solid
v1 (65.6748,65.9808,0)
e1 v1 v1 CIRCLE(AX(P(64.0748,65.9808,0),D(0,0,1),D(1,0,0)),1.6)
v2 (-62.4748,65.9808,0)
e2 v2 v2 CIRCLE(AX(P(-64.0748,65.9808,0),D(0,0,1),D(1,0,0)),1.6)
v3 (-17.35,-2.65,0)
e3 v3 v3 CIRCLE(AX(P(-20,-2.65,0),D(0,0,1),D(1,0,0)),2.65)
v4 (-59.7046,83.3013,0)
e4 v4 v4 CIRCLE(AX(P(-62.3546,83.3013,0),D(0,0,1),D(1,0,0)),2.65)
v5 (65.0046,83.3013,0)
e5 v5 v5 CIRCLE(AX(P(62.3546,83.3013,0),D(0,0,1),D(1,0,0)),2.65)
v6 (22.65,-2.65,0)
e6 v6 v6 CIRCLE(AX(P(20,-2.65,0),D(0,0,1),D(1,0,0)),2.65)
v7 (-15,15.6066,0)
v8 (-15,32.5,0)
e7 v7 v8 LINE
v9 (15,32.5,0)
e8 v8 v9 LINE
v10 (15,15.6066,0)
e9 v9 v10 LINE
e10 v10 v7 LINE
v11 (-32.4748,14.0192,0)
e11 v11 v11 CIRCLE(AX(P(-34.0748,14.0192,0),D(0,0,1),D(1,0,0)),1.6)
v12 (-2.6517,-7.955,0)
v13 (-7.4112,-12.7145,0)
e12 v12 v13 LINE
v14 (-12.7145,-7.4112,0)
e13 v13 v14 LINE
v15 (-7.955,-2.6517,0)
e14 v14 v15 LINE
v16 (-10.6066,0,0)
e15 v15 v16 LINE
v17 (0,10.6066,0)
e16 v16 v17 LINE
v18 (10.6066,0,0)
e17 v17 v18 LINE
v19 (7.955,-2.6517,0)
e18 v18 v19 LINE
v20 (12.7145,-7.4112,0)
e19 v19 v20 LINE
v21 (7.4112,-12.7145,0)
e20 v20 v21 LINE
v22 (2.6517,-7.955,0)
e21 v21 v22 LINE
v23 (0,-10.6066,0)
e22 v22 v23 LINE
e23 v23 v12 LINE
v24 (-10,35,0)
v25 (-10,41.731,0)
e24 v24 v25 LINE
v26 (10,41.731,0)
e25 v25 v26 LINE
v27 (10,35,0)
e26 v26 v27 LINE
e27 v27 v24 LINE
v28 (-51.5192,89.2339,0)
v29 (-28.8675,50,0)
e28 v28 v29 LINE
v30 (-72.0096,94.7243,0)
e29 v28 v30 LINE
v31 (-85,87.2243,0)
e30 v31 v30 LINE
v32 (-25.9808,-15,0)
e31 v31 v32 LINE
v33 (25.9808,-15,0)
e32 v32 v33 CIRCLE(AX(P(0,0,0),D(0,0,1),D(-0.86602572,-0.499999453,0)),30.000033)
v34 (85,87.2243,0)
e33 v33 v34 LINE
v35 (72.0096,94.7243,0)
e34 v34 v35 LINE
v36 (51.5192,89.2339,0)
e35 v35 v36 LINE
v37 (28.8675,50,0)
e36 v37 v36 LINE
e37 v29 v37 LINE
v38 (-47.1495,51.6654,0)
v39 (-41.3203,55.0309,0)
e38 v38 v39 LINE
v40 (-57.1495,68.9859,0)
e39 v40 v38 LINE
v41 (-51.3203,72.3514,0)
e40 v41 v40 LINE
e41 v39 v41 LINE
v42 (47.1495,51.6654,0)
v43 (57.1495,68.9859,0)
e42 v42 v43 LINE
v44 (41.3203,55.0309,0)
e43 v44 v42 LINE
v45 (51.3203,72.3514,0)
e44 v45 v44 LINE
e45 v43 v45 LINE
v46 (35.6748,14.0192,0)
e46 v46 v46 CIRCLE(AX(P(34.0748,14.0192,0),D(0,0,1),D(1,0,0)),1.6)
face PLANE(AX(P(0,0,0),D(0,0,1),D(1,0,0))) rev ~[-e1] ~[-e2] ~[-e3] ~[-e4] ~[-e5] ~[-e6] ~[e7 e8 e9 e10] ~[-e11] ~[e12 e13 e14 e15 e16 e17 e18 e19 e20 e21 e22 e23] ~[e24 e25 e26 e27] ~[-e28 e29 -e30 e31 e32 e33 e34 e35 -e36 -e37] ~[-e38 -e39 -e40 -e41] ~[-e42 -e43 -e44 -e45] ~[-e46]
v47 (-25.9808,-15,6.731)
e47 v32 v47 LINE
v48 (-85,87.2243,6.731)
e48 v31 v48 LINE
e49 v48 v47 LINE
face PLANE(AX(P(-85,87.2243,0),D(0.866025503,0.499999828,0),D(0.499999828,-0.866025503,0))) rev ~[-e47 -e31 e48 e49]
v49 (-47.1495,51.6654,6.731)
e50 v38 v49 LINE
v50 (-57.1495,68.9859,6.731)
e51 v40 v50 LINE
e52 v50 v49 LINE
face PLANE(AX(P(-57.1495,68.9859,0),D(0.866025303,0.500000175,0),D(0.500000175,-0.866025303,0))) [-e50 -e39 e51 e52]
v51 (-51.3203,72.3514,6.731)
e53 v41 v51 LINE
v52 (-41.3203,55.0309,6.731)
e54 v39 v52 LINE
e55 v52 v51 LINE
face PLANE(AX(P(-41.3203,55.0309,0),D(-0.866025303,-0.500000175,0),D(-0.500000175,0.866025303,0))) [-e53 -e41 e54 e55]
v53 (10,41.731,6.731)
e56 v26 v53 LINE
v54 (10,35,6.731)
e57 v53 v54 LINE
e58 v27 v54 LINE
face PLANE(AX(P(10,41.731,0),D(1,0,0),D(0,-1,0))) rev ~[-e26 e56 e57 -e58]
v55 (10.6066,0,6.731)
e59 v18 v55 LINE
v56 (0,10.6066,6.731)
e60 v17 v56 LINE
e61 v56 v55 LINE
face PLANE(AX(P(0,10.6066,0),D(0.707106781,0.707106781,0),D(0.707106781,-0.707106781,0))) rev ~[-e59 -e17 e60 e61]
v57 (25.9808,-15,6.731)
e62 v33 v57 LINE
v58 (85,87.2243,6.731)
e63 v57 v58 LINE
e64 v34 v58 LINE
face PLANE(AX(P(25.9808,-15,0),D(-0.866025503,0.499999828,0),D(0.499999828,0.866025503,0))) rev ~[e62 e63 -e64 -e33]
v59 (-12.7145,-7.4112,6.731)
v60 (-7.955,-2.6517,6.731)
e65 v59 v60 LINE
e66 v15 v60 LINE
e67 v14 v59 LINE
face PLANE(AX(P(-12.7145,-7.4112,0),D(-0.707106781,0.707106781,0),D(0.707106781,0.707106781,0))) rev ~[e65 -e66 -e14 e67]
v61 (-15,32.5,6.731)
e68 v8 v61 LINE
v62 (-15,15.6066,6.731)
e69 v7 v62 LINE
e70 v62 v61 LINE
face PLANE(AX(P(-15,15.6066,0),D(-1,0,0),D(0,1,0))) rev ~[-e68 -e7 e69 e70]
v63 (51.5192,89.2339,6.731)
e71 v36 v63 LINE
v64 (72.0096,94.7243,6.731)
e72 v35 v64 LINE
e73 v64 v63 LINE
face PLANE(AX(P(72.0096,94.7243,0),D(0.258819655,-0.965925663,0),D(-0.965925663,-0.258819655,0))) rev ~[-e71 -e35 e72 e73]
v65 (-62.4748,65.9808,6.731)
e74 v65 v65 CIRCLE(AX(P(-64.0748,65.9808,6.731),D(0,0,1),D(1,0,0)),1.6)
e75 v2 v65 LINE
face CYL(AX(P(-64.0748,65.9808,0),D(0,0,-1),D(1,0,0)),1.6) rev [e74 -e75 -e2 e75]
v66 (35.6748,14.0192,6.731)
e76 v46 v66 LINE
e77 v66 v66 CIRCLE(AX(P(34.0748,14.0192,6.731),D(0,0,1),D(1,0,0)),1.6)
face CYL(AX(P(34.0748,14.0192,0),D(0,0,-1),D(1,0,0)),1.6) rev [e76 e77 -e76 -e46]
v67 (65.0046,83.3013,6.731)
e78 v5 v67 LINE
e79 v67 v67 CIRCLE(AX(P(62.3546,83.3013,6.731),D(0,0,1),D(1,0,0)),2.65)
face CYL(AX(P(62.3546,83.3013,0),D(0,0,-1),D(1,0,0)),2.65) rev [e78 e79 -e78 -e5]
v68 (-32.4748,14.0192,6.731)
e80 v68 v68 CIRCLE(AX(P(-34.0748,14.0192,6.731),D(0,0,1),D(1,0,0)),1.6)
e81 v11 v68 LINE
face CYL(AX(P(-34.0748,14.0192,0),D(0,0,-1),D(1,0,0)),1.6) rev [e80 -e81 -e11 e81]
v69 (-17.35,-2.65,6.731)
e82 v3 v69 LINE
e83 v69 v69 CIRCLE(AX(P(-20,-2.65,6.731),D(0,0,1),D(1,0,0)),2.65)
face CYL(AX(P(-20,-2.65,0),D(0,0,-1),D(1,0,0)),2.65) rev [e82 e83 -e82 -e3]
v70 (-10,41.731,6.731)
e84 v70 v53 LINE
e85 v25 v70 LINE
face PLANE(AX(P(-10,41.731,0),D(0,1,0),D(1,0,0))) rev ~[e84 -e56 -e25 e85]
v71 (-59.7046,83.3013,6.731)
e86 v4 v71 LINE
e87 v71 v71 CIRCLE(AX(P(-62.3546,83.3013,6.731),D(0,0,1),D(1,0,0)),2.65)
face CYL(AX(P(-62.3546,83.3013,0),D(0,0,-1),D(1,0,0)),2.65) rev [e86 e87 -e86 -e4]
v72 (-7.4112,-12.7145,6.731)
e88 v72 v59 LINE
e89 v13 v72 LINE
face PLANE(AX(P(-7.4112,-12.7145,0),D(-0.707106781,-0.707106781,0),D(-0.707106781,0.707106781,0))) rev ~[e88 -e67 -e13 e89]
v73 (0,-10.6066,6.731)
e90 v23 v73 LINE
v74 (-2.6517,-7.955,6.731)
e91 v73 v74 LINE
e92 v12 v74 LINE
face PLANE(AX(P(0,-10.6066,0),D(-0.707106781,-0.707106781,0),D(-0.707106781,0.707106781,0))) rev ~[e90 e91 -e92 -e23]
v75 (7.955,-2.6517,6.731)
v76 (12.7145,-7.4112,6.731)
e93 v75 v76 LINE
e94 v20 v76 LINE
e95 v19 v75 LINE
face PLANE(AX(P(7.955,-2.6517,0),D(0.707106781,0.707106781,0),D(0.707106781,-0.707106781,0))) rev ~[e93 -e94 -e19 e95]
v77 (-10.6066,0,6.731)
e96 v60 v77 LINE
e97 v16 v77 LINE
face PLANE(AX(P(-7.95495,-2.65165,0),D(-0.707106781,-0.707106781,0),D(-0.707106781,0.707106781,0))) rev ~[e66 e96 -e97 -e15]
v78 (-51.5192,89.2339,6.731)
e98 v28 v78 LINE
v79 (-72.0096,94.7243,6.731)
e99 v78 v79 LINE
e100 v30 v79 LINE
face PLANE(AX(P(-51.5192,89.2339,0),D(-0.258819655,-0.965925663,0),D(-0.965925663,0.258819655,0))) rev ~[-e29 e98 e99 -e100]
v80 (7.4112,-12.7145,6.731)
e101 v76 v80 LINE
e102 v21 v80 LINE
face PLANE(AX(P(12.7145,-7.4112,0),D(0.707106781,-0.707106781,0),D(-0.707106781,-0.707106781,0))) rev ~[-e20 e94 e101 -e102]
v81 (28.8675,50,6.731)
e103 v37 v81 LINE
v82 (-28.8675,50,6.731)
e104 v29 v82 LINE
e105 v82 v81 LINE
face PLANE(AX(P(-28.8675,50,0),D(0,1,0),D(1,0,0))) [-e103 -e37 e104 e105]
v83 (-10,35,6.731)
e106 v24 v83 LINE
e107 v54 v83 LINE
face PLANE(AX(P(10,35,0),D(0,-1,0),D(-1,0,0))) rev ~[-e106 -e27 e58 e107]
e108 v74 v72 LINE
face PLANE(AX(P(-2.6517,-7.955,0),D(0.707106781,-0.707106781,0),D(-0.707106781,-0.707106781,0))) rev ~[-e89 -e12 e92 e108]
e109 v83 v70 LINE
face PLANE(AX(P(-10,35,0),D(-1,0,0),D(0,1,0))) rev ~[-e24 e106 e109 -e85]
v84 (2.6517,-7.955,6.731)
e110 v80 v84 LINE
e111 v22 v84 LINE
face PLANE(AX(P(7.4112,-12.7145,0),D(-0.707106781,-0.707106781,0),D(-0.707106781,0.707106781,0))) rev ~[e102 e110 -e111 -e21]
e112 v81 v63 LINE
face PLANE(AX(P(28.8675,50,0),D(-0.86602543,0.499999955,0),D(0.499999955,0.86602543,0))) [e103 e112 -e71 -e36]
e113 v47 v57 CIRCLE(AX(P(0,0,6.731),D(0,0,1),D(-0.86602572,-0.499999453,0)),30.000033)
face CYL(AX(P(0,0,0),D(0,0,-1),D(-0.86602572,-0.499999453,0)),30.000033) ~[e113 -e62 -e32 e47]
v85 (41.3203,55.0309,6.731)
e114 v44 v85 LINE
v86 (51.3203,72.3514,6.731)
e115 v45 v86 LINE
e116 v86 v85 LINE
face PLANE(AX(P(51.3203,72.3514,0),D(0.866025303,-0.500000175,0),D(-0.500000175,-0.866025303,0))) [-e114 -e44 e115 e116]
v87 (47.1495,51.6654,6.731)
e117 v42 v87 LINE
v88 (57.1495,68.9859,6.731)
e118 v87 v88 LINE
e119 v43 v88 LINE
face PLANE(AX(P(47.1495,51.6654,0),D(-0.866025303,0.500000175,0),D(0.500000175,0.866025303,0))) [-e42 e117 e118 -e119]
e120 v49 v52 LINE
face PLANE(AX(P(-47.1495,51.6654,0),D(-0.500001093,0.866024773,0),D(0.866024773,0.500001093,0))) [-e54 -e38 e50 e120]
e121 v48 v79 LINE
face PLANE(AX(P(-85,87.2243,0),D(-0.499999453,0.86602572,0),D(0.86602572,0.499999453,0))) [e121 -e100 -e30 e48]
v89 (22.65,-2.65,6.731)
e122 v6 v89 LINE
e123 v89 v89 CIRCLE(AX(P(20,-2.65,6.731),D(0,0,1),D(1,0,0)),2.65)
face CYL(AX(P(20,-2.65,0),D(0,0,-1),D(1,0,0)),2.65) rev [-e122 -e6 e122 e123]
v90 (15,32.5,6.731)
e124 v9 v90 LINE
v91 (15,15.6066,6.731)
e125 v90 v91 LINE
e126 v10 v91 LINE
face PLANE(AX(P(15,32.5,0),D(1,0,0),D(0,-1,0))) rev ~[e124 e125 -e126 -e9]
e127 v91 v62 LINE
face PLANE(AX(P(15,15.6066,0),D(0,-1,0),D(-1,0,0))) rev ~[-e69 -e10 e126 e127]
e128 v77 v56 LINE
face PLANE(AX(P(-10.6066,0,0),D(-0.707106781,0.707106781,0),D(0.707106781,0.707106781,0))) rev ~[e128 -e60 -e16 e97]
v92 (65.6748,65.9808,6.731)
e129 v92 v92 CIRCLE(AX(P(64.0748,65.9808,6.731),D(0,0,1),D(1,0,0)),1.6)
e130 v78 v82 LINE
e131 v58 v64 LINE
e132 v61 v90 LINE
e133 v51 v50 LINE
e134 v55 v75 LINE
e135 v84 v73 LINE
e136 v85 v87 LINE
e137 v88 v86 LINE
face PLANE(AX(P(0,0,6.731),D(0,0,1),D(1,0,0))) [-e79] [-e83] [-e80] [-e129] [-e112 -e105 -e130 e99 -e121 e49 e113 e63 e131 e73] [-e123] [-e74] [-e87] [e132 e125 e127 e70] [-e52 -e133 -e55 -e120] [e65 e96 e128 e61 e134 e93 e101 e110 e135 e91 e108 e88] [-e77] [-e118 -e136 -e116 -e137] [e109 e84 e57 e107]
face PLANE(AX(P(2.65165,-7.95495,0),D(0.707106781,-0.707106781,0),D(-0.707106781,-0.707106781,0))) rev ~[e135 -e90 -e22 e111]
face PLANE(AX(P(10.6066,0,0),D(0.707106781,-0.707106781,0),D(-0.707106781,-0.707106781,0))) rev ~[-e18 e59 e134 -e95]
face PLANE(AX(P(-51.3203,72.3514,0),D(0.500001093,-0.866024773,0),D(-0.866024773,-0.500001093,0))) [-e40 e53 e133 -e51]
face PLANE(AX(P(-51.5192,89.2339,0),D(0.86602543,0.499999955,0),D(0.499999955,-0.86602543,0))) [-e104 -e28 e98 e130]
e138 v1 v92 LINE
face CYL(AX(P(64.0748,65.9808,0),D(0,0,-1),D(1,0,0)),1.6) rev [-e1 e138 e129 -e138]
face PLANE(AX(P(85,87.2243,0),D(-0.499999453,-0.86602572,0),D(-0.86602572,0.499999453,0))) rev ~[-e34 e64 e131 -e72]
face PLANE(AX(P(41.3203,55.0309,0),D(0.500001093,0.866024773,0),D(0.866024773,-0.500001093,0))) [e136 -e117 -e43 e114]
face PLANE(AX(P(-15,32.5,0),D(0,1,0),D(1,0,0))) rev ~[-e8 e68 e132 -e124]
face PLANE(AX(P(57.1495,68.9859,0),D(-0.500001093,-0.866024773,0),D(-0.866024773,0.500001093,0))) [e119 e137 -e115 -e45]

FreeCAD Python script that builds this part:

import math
import FreeCAD as App
import Part
import Sketcher

V = App.Vector
Q = App.Units.Quantity


def add_polygon(sketch, points):
    """Adds a closed chain of lines whose ends are joined by coincident constraints."""
    first, n = sketch.GeometryCount, len(points)
    for a, b in zip(points, points[1:] + points[:1]):
        sketch.addGeometry(Part.LineSegment(App.Vector(*a, 0), App.Vector(*b, 0)), False)
    for i in range(n):
        sketch.addConstraint(Sketcher.Constraint("Coincident", first + i, 2, first + (i + 1) % n, 1))

doc = App.newDocument("Part")
params = doc.addObject("Spreadsheet::Sheet", "Params")
for row, (alias, value) in enumerate([
    ("sketch1_radius", "30 mm"),
    ("sketch1_diameter", "5.3 mm"),
    ("sketch1_diameter2", "3.2 mm"),
    ("sketch1_width", "30 mm"),
    ("sketch1_width2", "20 mm"),
    ("pad1_length", "6.731 mm"),
    ("sketch2_diameter", "3.2 mm"),
    ("pad2_length", "6.731 mm"),
], start=1):
    params.set(f"A{row}", alias)
    params.set(f"B{row}", "=" + value)
    params.setAlias(f"B{row}", alias)

body = doc.addObject("PartDesign::Body", "Body")

# Sketch on XY plane
sketch1 = body.newObject("Sketcher::SketchObject", "Sketch")
sketch1.AttachmentSupport = (doc.getObject("XY_Plane"), [""])
sketch1.MapMode = "FlatFace"
sketch1.addGeometry(Part.LineSegment(V(-85, 87.2, 0), V(-26, -15, 0)), False)  # 0
sketch1.addGeometry(Part.ArcOfCircle(Part.Circle(V(0, 0, 0), V(0, 0, 1), 30), math.radians(-150), math.radians(-30)), False)  # 1
sketch1.addGeometry(Part.LineSegment(V(26, -15, 0), V(85, 87.2, 0)), False)  # 2
sketch1.addGeometry(Part.LineSegment(V(85, 87.2, 0), V(72, 94.7, 0)), False)  # 3
sketch1.addGeometry(Part.LineSegment(V(72, 94.7, 0), V(51.5, 89.2, 0)), False)  # 4
sketch1.addGeometry(Part.LineSegment(V(51.5, 89.2, 0), V(28.9, 50, 0)), False)  # 5
sketch1.addGeometry(Part.LineSegment(V(28.9, 50, 0), V(-28.9, 50, 0)), False)  # 6
sketch1.addGeometry(Part.LineSegment(V(-28.9, 50, 0), V(-51.5, 89.2, 0)), False)  # 7
sketch1.addGeometry(Part.LineSegment(V(-51.5, 89.2, 0), V(-72, 94.7, 0)), False)  # 8
sketch1.addGeometry(Part.LineSegment(V(-72, 94.7, 0), V(-85, 87.2, 0)), False)  # 9
sketch1.addGeometry(Part.Circle(V(-20, -2.6, 0), V(0, 0, 1), 2.6), False)  # 10
sketch1.addGeometry(Part.Circle(V(-34.1, 14, 0), V(0, 0, 1), 1.6), False)  # 11
sketch1.addGeometry(Part.Circle(V(20, -2.6, 0), V(0, 0, 1), 2.6), False)  # 12
add_polygon(sketch1, [(-8, -2.7), (-10.6, 0), (0, 10.6), (10.6, 0), (8, -2.7), (12.7, -7.4), (7.4, -12.7), (2.7, -8), (0, -10.6), (-2.7, -8), (-7.4, -12.7), (-12.7, -7.4)])  # lines 13-24
sketch1.addGeometry(Part.Circle(V(34.1, 14, 0), V(0, 0, 1), 1.6), False)  # 25
sketch1.addGeometry(Part.Circle(V(-49.1, 40, 0), V(0, 0, 1), 1.6), False)  # 26
sketch1.addGeometry(Part.Circle(V(-64.1, 66, 0), V(0, 0, 1), 1.6), False)  # 27
add_polygon(sketch1, [(-47.1, 51.7), (-57.1, 69), (-51.3, 72.4), (-41.3, 55)])  # lines 28-31
sketch1.addGeometry(Part.Circle(V(-62.4, 83.3, 0), V(0, 0, 1), 2.6), False)  # 32
add_polygon(sketch1, [(-15, 15.6), (-15, 32.5), (15, 32.5), (15, 15.6)])  # lines 33-36
add_polygon(sketch1, [(-10, 41.7), (10, 41.7), (10, 35), (-10, 35)])  # lines 37-40
sketch1.addGeometry(Part.Circle(V(49.1, 40, 0), V(0, 0, 1), 1.6), False)  # 41
add_polygon(sketch1, [(57.1, 69), (47.1, 51.7), (41.3, 55), (51.3, 72.4)])  # lines 42-45
sketch1.addGeometry(Part.Circle(V(64.1, 66, 0), V(0, 0, 1), 1.6), False)  # 46
sketch1.addGeometry(Part.Circle(V(62.4, 83.3, 0), V(0, 0, 1), 2.6), False)  # 47
sketch1.addConstraint(Sketcher.Constraint("Tangent", 0, 2, 1, 1))
sketch1.addConstraint(Sketcher.Constraint("Tangent", 1, 2, 2, 1))
sketch1.addConstraint(Sketcher.Constraint("Coincident", 2, 2, 3, 1))
sketch1.addConstraint(Sketcher.Constraint("Coincident", 3, 2, 4, 1))
sketch1.addConstraint(Sketcher.Constraint("Coincident", 4, 2, 5, 1))
sketch1.addConstraint(Sketcher.Constraint("Coincident", 5, 2, 6, 1))
sketch1.addConstraint(Sketcher.Constraint("Coincident", 6, 2, 7, 1))
sketch1.addConstraint(Sketcher.Constraint("Coincident", 7, 2, 8, 1))
sketch1.addConstraint(Sketcher.Constraint("Coincident", 8, 2, 9, 1))
sketch1.addConstraint(Sketcher.Constraint("Coincident", 9, 2, 0, 1))
sketch1.addConstraint(Sketcher.Constraint("Horizontal", 6))
sketch1.addConstraint(Sketcher.Constraint("Vertical", 33))
sketch1.addConstraint(Sketcher.Constraint("Horizontal", 34))
sketch1.addConstraint(Sketcher.Constraint("Vertical", 35))
sketch1.addConstraint(Sketcher.Constraint("Horizontal", 36))
sketch1.addConstraint(Sketcher.Constraint("Horizontal", 37))
sketch1.addConstraint(Sketcher.Constraint("Vertical", 38))
sketch1.addConstraint(Sketcher.Constraint("Horizontal", 39))
sketch1.addConstraint(Sketcher.Constraint("Vertical", 40))
sketch1.addConstraint(Sketcher.Constraint("Coincident", 1, 3, -1, 1))
sketch1.addConstraint(Sketcher.Constraint("Equal", 10, 12))
sketch1.addConstraint(Sketcher.Constraint("Equal", 11, 25))
sketch1.addConstraint(Sketcher.Constraint("Equal", 25, 26))
sketch1.addConstraint(Sketcher.Constraint("Equal", 26, 27))
sketch1.addConstraint(Sketcher.Constraint("Equal", 12, 32))
sketch1.addConstraint(Sketcher.Constraint("Equal", 27, 41))
sketch1.addConstraint(Sketcher.Constraint("Equal", 41, 46))
sketch1.addConstraint(Sketcher.Constraint("Equal", 32, 47))
sketch1.addConstraint(Sketcher.Constraint("Symmetric", 13, 2, 15, 2, -1, 1))
sketch1.addConstraint(Sketcher.Constraint("Symmetric", 14, 2, 20, 2, -1, 1))
sketch1.addConstraint(Sketcher.Constraint("Symmetric", 10, 3, 12, 3, -2))
sketch1.addConstraint(Sketcher.Constraint("Symmetric", 11, 3, 25, 3, -2))
sketch1.addConstraint(Sketcher.Constraint("Symmetric", 26, 3, 41, 3, -2))
sketch1.addConstraint(Sketcher.Constraint("Symmetric", 27, 3, 46, 3, -2))
sketch1.addConstraint(Sketcher.Constraint("Symmetric", 32, 3, 47, 3, -2))
sketch1.addConstraint(Sketcher.Constraint("Symmetric", 4, 2, 7, 2, -2))
sketch1.addConstraint(Sketcher.Constraint("Symmetric", 3, 2, 8, 2, -2))
sketch1.addConstraint(Sketcher.Constraint("Symmetric", 2, 2, 9, 2, -2))
sketch1.addConstraint(Sketcher.Constraint("Symmetric", 19, 2, 21, 2, -2))
sketch1.addConstraint(Sketcher.Constraint("Symmetric", 18, 2, 22, 2, -2))
sketch1.addConstraint(Sketcher.Constraint("Symmetric", 17, 2, 23, 2, -2))
sketch1.addConstraint(Sketcher.Constraint("Symmetric", 16, 2, 24, 2, -2))
sketch1.addConstraint(Sketcher.Constraint("Symmetric", 31, 2, 42, 2, -2))
sketch1.addConstraint(Sketcher.Constraint("Symmetric", 30, 2, 43, 2, -2))
sketch1.addConstraint(Sketcher.Constraint("Symmetric", 29, 2, 44, 2, -2))
sketch1.addConstraint(Sketcher.Constraint("Symmetric", 28, 2, 45, 2, -2))
sketch1.addConstraint(Sketcher.Constraint("PointOnObject", 13, 2, -1))
sketch1.addConstraint(Sketcher.Constraint("PointOnObject", 14, 2, -2))
sketch1.addConstraint(Sketcher.Constraint("Perpendicular", 2, 3))
sketch1.addConstraint(Sketcher.Constraint("Perpendicular", 3, 5))
sketch1.addConstraint(Sketcher.Constraint("Parallel", 0, 7))
sketch1.addConstraint(Sketcher.Constraint("Perpendicular", 13, 14))
sketch1.addConstraint(Sketcher.Constraint("Perpendicular", 14, 15))
sketch1.addConstraint(Sketcher.Constraint("Perpendicular", 16, 17))
sketch1.addConstraint(Sketcher.Constraint("Perpendicular", 17, 18))
sketch1.addConstraint(Sketcher.Constraint("Perpendicular", 18, 19))
sketch1.addConstraint(Sketcher.Constraint("Perpendicular", 19, 20))
sketch1.addConstraint(Sketcher.Constraint("Perpendicular", 9, 28))
sketch1.addConstraint(Sketcher.Constraint("Perpendicular", 28, 29))
sketch1.addConstraint(Sketcher.Constraint("Perpendicular", 29, 30))
sketch1.addConstraint(Sketcher.Constraint("Perpendicular", 30, 31))
sketch1.addConstraint(Sketcher.Constraint("Equal", 9, 14))
sketch1.addConstraint(Sketcher.Constraint("Equal", 16, 20))
sketch1.addConstraint(Sketcher.Constraint("Equal", 24, 29))
sketch1.addConstraint(Sketcher.Constraint("Radius", 1, 30.0))
sketch1.addConstraint(Sketcher.Constraint("Diameter", 10, 5.3))
sketch1.addConstraint(Sketcher.Constraint("Diameter", 11, 3.2))
sketch1.addConstraint(Sketcher.Constraint("DistanceX", 34, 1, 34, 2, 30.0))
sketch1.addConstraint(Sketcher.Constraint("DistanceX", 37, 1, 37, 2, 20.0))
sketch1.addConstraint(Sketcher.Constraint("Angle", 0, Q("-60 deg")))
sketch1.addConstraint(Sketcher.Constraint("Distance", 3, 15.0))
sketch1.addConstraint(Sketcher.Constraint("Distance", 28, 20.0))
sketch1.addConstraint(Sketcher.Constraint("DistanceX", 10, 3, -1, 1, 20.0))
sketch1.addConstraint(Sketcher.Constraint("DistanceY", -1, 1, 26, 3, 40.0))
sketch1.addConstraint(Sketcher.Constraint("DistanceY", -1, 1, 5, 2, 50.0))
sketch1.addConstraint(Sketcher.Constraint("DistanceX", 33, 2, -1, 1, 15.0))
sketch1.addConstraint(Sketcher.Constraint("DistanceY", -1, 1, 38, 2, 35.0))
sketch1.addConstraint(Sketcher.Constraint("DistanceX", 26, 3, 11, 3, 15.0))
sketch1.addConstraint(Sketcher.Constraint("DistanceX", 27, 3, 26, 3, 15.0))
sketch1.addConstraint(Sketcher.Constraint("DistanceY", 14, 2, 35, 2, 5.0))
sketch1.addConstraint(Sketcher.Constraint("DistanceX", 37, 2, 34, 2, 5.0))
sketch1.addConstraint(Sketcher.Constraint("Distance", 18, 7.5))
sketch1.addConstraint(Sketcher.Constraint("DistanceY", 34, 2, 38, 2, 2.5))
sketch1.addConstraint(Sketcher.Constraint("DistanceY", 38, 2, 38, 1, 6.731))
sketch1.addConstraint(Sketcher.Constraint("Angle", 4, Q("-165 deg")))
sketch1.addConstraint(Sketcher.Constraint("Distance", 17, 6.731))
sketch1.addConstraint(Sketcher.Constraint("DistanceX", -1, 1, 2, 2, 85.0))
sketch1.addConstraint(Sketcher.Constraint("DistanceY", 37, 2, 43, 2, 13.3))
sketch1.addConstraint(Sketcher.Constraint("DistanceX", 6, 2, 6, 1, 57.735))
sketch1.addConstraint(Sketcher.Constraint("DistanceY", 10, 3, -1, 1, 2.65))
sketch1.addConstraint(Sketcher.Constraint("DistanceX", 8, 2, 28, 2, 14.86))
sketch1.addConstraint(Sketcher.Constraint("DistanceY", 29, 2, 32, 3, 10.95))
sketch1.addConstraint(Sketcher.Constraint("DistanceY", 30, 2, 27, 3, 10.95))
sketch1.addConstraint(Sketcher.Constraint("DistanceY", 11, 3, 32, 3, 69.282))
sketch1.addConstraint(Sketcher.Constraint("DistanceX", 11, 3, 0, 2, 8.094))
sketch1.addConstraint(Sketcher.Constraint("DistanceX", 47, 3, 3, 2, 9.655))
sketch1.setExpression("Constraints[92]", "Params.sketch1_radius")
sketch1.setExpression("Constraints[93]", "Params.sketch1_diameter")
sketch1.setExpression("Constraints[94]", "Params.sketch1_diameter2")
sketch1.setExpression("Constraints[95]", "Params.sketch1_width")
sketch1.setExpression("Constraints[96]", "Params.sketch1_width2")
pad1 = body.newObject("PartDesign::Pad", "Pad")
pad1.Profile = sketch1
pad1.setExpression("Length", "Params.pad1_length")

# Sketch on XY plane
sketch2 = body.newObject("Sketcher::SketchObject", "Sketch001")
sketch2.AttachmentSupport = (doc.getObject("XY_Plane"), [""])
sketch2.MapMode = "FlatFace"
sketch2.AttachmentOffset = App.Placement(V(0, 0, 6.731), App.Rotation())
sketch2.addGeometry(Part.Circle(V(49.1, 40, 0), V(0, 0, 1), 1.6), False)
sketch2.addGeometry(Part.Circle(V(-49.1, 40, 0), V(0, 0, 1), 1.6), False)
sketch2.addConstraint(Sketcher.Constraint("Equal", 0, 1))
sketch2.addConstraint(Sketcher.Constraint("Symmetric", 0, 3, 1, 3, -2))
sketch2.addConstraint(Sketcher.Constraint("Diameter", 0, 3.2))
sketch2.addConstraint(Sketcher.Constraint("DistanceY", -1, 1, 0, 3, 40.0))
sketch2.addConstraint(Sketcher.Constraint("DistanceX", -1, 1, 0, 3, 49.0748))
sketch2.setExpression("Constraints[2]", "Params.sketch2_diameter")
pad2 = body.newObject("PartDesign::Pad", "Pad001")
pad2.Profile = sketch2
pad2.setExpression("Length", "Params.pad2_length")
pad2.Reversed = True

doc.recompute()
